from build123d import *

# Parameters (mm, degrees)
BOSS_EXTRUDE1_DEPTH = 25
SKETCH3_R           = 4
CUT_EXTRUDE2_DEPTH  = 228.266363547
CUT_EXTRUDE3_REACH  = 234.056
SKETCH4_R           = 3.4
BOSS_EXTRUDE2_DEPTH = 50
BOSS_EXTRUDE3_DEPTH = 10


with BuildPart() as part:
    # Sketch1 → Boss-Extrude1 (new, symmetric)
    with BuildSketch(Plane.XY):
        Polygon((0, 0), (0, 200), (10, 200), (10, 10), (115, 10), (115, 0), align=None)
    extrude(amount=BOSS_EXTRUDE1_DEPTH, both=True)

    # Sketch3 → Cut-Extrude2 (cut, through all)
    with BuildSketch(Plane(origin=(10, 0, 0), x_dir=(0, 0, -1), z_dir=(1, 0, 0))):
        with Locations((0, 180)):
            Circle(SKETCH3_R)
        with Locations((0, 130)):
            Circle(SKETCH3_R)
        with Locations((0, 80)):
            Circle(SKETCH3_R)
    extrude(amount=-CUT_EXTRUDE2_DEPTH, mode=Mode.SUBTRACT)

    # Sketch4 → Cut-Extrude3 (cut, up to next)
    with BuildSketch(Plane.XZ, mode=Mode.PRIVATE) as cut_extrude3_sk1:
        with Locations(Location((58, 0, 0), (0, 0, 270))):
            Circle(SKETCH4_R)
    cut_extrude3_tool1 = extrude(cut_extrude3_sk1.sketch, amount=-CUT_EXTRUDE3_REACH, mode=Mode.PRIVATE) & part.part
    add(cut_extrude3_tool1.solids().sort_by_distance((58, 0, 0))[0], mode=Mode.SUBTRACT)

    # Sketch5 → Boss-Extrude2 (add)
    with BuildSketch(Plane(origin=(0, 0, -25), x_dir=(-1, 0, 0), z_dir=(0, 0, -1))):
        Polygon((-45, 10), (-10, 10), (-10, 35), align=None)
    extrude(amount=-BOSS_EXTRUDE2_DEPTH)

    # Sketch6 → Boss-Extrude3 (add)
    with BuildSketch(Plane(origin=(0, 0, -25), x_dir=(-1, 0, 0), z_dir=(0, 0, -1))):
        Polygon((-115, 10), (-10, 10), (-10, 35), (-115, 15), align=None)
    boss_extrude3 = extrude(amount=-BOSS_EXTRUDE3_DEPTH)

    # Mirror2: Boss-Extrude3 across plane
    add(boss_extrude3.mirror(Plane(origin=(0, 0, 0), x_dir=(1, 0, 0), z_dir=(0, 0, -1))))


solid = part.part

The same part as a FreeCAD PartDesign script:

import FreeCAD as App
import Part
import Sketcher

V = App.Vector


def add_polygon(sketch, points):
    """Adds a closed chain of lines whose ends are joined by coincident constraints."""
    first, n = sketch.GeometryCount, len(points)
    for a, b in zip(points, points[1:] + points[:1]):
        sketch.addGeometry(Part.LineSegment(App.Vector(*a, 0), App.Vector(*b, 0)), False)
    for i in range(n):
        sketch.addConstraint(Sketcher.Constraint("Coincident", first + i, 2, first + (i + 1) % n, 1))

doc = App.newDocument("Part")
params = doc.addObject("Spreadsheet::Sheet", "Params")
for row, (alias, value) in enumerate([
    ("sketch1_width", "115 mm"),
    ("sketch1_width2", "105 mm"),
    ("sketch1_height", "200 mm"),
    ("pad1_length", "50 mm"),
    ("sketch2_diameter", "8 mm"),
    ("sketch3_diameter", "6.8 mm"),
    ("sketch4_width", "35 mm"),
    ("sketch4_height", "25 mm"),
    ("pad2_length", "50 mm"),
    ("sketch5_width", "105 mm"),
    ("sketch5_height", "25 mm"),
    ("sketch5_height2", "5 mm"),
    ("pad3_length", "10 mm"),
], start=1):
    params.set(f"A{row}", alias)
    params.set(f"B{row}", "=" + value)
    params.setAlias(f"B{row}", alias)

body = doc.addObject("PartDesign::Body", "Body")

# Sketch on XY plane
sketch1 = body.newObject("Sketcher::SketchObject", "Sketch")
sketch1.AttachmentSupport = (doc.getObject("XY_Plane"), [""])
sketch1.MapMode = "FlatFace"
add_polygon(sketch1, [(0, 200), (0, 0), (115, 0), (115, 10), (10, 10), (10, 200)])  # lines 0-5
sketch1.addConstraint(Sketcher.Constraint("Vertical", 0))
sketch1.addConstraint(Sketcher.Constraint("Horizontal", 1))
sketch1.addConstraint(Sketcher.Constraint("Vertical", 2))
sketch1.addConstraint(Sketcher.Constraint("Horizontal", 3))
sketch1.addConstraint(Sketcher.Constraint("Vertical", 4))
sketch1.addConstraint(Sketcher.Constraint("Horizontal", 5))
sketch1.addConstraint(Sketcher.Constraint("Coincident", 0, 2, -1, 1))
sketch1.addConstraint(Sketcher.Constraint("Equal", 5, 2))
sketch1.addConstraint(Sketcher.Constraint("DistanceX", 1, 1, 1, 2, 115.0))
sketch1.addConstraint(Sketcher.Constraint("DistanceX", 3, 2, 3, 1, 105.0))
sketch1.addConstraint(Sketcher.Constraint("DistanceY", 0, 2, 0, 1, 200.0))
sketch1.setExpression("Constraints[14]", "Params.sketch1_width")
sketch1.setExpression("Constraints[15]", "Params.sketch1_width2")
sketch1.setExpression("Constraints[16]", "Params.sketch1_height")
pad1 = body.newObject("PartDesign::Pad", "Pad")
pad1.Profile = sketch1
pad1.setExpression("Length", "Params.pad1_length")
pad1.Midplane = True

# Sketch on YZ plane
sketch2 = body.newObject("Sketcher::SketchObject", "Sketch001")
sketch2.AttachmentSupport = (doc.getObject("YZ_Plane"), [""])
sketch2.MapMode = "FlatFace"
sketch2.AttachmentOffset = App.Placement(V(0, 0, 10), App.Rotation())
sketch2.addGeometry(Part.Circle(V(180, 0, 0), V(0, 0, 1), 4), False)
sketch2.addGeometry(Part.Circle(V(130, 0, 0), V(0, 0, 1), 4), False)
sketch2.addGeometry(Part.Circle(V(80, 0, 0), V(0, 0, 1), 4), False)
sketch2.addConstraint(Sketcher.Constraint("Equal", 0, 1))
sketch2.addConstraint(Sketcher.Constraint("Equal", 1, 2))
sketch2.addConstraint(Sketcher.Constraint("PointOnObject", 0, 3, -1))
sketch2.addConstraint(Sketcher.Constraint("PointOnObject", 1, 3, -1))
sketch2.addConstraint(Sketcher.Constraint("PointOnObject", 2, 3, -1))
sketch2.addConstraint(Sketcher.Constraint("Diameter", 0, 8.0))
sketch2.addConstraint(Sketcher.Constraint("DistanceX", -1, 1, 0, 3, 180.0))
sketch2.addConstraint(Sketcher.Constraint("DistanceX", -1, 1, 1, 3, 130.0))
sketch2.addConstraint(Sketcher.Constraint("DistanceX", -1, 1, 2, 3, 80.0))
sketch2.setExpression("Constraints[5]", "Params.sketch2_diameter")
pocket1 = body.newObject("PartDesign::Pocket", "Pocket")
pocket1.Profile = sketch2
pocket1.Type = "ThroughAll"

# Sketch on XZ plane
sketch3 = body.newObject("Sketcher::SketchObject", "Sketch002")
sketch3.AttachmentSupport = (doc.getObject("XZ_Plane"), [""])
sketch3.MapMode = "FlatFace"
sketch3.addGeometry(Part.Circle(V(58, 0, 0), V(0, 0, 1), 3.4), False)
sketch3.addConstraint(Sketcher.Constraint("PointOnObject", 0, 3, -1))
sketch3.addConstraint(Sketcher.Constraint("Diameter", 0, 6.8))
sketch3.addConstraint(Sketcher.Constraint("DistanceX", -1, 1, 0, 3, 58.0))
sketch3.setExpression("Constraints[1]", "Params.sketch3_diameter")
pocket2 = body.newObject("PartDesign::Pocket", "Pocket001")
pocket2.Profile = sketch3
pocket2.Type = "UpToFirst"

# Sketch on XY plane
sketch4 = body.newObject("Sketcher::SketchObject", "Sketch003")
sketch4.AttachmentSupport = (doc.getObject("XY_Plane"), [""])
sketch4.MapMode = "FlatFace"
sketch4.AttachmentOffset = App.Placement(V(0, 0, -25), App.Rotation())
add_polygon(sketch4, [(45, 10), (10, 10), (10, 35)])  # lines 0-2
sketch4.addConstraint(Sketcher.Constraint("Horizontal", 0))
sketch4.addConstraint(Sketcher.Constraint("Vertical", 1))
sketch4.addConstraint(Sketcher.Constraint("DistanceX", 0, 2, 0, 1, 35.0))
sketch4.addConstraint(Sketcher.Constraint("DistanceY", 1, 1, 1, 2, 25.0))
sketch4.addConstraint(Sketcher.Constraint("DistanceX", -1, 1, 0, 2, 10.0))
sketch4.addConstraint(Sketcher.Constraint("DistanceY", -1, 1, 0, 2, 10.0))
sketch4.setExpression("Constraints[5]", "Params.sketch4_width")
sketch4.setExpression("Constraints[6]", "Params.sketch4_height")
pad2 = body.newObject("PartDesign::Pad", "Pad001")
pad2.Profile = sketch4
pad2.setExpression("Length", "Params.pad2_length")

# Sketch on XY plane
sketch5 = body.newObject("Sketcher::SketchObject", "Sketch004")
sketch5.AttachmentSupport = (doc.getObject("XY_Plane"), [""])
sketch5.MapMode = "FlatFace"
sketch5.AttachmentOffset = App.Placement(V(0, 0, -25), App.Rotation())
add_polygon(sketch5, [(115, 10), (10, 10), (10, 35), (115, 15)])  # lines 0-3
sketch5.addConstraint(Sketcher.Constraint("Horizontal", 0))
sketch5.addConstraint(Sketcher.Constraint("Vertical", 1))
sketch5.addConstraint(Sketcher.Constraint("Vertical", 3))
sketch5.addConstraint(Sketcher.Constraint("DistanceX", 0, 2, 0, 1, 105.0))
sketch5.addConstraint(Sketcher.Constraint("DistanceY", 1, 1, 1, 2, 25.0))
sketch5.addConstraint(Sketcher.Constraint("DistanceY", 3, 2, 3, 1, 5.0))
sketch5.addConstraint(Sketcher.Constraint("DistanceX", -1, 1, 0, 2, 10.0))
sketch5.addConstraint(Sketcher.Constraint("DistanceY", -1, 1, 0, 2, 10.0))
sketch5.setExpression("Constraints[7]", "Params.sketch5_width")
sketch5.setExpression("Constraints[8]", "Params.sketch5_height")
sketch5.setExpression("Constraints[9]", "Params.sketch5_height2")
pad3 = body.newObject("PartDesign::Pad", "Pad002")
pad3.Profile = sketch5
pad3.setExpression("Length", "Params.pad3_length")
doc.recompute()

mirrored = body.newObject("PartDesign::Mirrored", "Mirrored")
mirrored.Originals = [pad3]
mirrored.MirrorPlane = (doc.getObject("XY_Plane"), [""])
body.Tip = mirrored

doc.recompute()
